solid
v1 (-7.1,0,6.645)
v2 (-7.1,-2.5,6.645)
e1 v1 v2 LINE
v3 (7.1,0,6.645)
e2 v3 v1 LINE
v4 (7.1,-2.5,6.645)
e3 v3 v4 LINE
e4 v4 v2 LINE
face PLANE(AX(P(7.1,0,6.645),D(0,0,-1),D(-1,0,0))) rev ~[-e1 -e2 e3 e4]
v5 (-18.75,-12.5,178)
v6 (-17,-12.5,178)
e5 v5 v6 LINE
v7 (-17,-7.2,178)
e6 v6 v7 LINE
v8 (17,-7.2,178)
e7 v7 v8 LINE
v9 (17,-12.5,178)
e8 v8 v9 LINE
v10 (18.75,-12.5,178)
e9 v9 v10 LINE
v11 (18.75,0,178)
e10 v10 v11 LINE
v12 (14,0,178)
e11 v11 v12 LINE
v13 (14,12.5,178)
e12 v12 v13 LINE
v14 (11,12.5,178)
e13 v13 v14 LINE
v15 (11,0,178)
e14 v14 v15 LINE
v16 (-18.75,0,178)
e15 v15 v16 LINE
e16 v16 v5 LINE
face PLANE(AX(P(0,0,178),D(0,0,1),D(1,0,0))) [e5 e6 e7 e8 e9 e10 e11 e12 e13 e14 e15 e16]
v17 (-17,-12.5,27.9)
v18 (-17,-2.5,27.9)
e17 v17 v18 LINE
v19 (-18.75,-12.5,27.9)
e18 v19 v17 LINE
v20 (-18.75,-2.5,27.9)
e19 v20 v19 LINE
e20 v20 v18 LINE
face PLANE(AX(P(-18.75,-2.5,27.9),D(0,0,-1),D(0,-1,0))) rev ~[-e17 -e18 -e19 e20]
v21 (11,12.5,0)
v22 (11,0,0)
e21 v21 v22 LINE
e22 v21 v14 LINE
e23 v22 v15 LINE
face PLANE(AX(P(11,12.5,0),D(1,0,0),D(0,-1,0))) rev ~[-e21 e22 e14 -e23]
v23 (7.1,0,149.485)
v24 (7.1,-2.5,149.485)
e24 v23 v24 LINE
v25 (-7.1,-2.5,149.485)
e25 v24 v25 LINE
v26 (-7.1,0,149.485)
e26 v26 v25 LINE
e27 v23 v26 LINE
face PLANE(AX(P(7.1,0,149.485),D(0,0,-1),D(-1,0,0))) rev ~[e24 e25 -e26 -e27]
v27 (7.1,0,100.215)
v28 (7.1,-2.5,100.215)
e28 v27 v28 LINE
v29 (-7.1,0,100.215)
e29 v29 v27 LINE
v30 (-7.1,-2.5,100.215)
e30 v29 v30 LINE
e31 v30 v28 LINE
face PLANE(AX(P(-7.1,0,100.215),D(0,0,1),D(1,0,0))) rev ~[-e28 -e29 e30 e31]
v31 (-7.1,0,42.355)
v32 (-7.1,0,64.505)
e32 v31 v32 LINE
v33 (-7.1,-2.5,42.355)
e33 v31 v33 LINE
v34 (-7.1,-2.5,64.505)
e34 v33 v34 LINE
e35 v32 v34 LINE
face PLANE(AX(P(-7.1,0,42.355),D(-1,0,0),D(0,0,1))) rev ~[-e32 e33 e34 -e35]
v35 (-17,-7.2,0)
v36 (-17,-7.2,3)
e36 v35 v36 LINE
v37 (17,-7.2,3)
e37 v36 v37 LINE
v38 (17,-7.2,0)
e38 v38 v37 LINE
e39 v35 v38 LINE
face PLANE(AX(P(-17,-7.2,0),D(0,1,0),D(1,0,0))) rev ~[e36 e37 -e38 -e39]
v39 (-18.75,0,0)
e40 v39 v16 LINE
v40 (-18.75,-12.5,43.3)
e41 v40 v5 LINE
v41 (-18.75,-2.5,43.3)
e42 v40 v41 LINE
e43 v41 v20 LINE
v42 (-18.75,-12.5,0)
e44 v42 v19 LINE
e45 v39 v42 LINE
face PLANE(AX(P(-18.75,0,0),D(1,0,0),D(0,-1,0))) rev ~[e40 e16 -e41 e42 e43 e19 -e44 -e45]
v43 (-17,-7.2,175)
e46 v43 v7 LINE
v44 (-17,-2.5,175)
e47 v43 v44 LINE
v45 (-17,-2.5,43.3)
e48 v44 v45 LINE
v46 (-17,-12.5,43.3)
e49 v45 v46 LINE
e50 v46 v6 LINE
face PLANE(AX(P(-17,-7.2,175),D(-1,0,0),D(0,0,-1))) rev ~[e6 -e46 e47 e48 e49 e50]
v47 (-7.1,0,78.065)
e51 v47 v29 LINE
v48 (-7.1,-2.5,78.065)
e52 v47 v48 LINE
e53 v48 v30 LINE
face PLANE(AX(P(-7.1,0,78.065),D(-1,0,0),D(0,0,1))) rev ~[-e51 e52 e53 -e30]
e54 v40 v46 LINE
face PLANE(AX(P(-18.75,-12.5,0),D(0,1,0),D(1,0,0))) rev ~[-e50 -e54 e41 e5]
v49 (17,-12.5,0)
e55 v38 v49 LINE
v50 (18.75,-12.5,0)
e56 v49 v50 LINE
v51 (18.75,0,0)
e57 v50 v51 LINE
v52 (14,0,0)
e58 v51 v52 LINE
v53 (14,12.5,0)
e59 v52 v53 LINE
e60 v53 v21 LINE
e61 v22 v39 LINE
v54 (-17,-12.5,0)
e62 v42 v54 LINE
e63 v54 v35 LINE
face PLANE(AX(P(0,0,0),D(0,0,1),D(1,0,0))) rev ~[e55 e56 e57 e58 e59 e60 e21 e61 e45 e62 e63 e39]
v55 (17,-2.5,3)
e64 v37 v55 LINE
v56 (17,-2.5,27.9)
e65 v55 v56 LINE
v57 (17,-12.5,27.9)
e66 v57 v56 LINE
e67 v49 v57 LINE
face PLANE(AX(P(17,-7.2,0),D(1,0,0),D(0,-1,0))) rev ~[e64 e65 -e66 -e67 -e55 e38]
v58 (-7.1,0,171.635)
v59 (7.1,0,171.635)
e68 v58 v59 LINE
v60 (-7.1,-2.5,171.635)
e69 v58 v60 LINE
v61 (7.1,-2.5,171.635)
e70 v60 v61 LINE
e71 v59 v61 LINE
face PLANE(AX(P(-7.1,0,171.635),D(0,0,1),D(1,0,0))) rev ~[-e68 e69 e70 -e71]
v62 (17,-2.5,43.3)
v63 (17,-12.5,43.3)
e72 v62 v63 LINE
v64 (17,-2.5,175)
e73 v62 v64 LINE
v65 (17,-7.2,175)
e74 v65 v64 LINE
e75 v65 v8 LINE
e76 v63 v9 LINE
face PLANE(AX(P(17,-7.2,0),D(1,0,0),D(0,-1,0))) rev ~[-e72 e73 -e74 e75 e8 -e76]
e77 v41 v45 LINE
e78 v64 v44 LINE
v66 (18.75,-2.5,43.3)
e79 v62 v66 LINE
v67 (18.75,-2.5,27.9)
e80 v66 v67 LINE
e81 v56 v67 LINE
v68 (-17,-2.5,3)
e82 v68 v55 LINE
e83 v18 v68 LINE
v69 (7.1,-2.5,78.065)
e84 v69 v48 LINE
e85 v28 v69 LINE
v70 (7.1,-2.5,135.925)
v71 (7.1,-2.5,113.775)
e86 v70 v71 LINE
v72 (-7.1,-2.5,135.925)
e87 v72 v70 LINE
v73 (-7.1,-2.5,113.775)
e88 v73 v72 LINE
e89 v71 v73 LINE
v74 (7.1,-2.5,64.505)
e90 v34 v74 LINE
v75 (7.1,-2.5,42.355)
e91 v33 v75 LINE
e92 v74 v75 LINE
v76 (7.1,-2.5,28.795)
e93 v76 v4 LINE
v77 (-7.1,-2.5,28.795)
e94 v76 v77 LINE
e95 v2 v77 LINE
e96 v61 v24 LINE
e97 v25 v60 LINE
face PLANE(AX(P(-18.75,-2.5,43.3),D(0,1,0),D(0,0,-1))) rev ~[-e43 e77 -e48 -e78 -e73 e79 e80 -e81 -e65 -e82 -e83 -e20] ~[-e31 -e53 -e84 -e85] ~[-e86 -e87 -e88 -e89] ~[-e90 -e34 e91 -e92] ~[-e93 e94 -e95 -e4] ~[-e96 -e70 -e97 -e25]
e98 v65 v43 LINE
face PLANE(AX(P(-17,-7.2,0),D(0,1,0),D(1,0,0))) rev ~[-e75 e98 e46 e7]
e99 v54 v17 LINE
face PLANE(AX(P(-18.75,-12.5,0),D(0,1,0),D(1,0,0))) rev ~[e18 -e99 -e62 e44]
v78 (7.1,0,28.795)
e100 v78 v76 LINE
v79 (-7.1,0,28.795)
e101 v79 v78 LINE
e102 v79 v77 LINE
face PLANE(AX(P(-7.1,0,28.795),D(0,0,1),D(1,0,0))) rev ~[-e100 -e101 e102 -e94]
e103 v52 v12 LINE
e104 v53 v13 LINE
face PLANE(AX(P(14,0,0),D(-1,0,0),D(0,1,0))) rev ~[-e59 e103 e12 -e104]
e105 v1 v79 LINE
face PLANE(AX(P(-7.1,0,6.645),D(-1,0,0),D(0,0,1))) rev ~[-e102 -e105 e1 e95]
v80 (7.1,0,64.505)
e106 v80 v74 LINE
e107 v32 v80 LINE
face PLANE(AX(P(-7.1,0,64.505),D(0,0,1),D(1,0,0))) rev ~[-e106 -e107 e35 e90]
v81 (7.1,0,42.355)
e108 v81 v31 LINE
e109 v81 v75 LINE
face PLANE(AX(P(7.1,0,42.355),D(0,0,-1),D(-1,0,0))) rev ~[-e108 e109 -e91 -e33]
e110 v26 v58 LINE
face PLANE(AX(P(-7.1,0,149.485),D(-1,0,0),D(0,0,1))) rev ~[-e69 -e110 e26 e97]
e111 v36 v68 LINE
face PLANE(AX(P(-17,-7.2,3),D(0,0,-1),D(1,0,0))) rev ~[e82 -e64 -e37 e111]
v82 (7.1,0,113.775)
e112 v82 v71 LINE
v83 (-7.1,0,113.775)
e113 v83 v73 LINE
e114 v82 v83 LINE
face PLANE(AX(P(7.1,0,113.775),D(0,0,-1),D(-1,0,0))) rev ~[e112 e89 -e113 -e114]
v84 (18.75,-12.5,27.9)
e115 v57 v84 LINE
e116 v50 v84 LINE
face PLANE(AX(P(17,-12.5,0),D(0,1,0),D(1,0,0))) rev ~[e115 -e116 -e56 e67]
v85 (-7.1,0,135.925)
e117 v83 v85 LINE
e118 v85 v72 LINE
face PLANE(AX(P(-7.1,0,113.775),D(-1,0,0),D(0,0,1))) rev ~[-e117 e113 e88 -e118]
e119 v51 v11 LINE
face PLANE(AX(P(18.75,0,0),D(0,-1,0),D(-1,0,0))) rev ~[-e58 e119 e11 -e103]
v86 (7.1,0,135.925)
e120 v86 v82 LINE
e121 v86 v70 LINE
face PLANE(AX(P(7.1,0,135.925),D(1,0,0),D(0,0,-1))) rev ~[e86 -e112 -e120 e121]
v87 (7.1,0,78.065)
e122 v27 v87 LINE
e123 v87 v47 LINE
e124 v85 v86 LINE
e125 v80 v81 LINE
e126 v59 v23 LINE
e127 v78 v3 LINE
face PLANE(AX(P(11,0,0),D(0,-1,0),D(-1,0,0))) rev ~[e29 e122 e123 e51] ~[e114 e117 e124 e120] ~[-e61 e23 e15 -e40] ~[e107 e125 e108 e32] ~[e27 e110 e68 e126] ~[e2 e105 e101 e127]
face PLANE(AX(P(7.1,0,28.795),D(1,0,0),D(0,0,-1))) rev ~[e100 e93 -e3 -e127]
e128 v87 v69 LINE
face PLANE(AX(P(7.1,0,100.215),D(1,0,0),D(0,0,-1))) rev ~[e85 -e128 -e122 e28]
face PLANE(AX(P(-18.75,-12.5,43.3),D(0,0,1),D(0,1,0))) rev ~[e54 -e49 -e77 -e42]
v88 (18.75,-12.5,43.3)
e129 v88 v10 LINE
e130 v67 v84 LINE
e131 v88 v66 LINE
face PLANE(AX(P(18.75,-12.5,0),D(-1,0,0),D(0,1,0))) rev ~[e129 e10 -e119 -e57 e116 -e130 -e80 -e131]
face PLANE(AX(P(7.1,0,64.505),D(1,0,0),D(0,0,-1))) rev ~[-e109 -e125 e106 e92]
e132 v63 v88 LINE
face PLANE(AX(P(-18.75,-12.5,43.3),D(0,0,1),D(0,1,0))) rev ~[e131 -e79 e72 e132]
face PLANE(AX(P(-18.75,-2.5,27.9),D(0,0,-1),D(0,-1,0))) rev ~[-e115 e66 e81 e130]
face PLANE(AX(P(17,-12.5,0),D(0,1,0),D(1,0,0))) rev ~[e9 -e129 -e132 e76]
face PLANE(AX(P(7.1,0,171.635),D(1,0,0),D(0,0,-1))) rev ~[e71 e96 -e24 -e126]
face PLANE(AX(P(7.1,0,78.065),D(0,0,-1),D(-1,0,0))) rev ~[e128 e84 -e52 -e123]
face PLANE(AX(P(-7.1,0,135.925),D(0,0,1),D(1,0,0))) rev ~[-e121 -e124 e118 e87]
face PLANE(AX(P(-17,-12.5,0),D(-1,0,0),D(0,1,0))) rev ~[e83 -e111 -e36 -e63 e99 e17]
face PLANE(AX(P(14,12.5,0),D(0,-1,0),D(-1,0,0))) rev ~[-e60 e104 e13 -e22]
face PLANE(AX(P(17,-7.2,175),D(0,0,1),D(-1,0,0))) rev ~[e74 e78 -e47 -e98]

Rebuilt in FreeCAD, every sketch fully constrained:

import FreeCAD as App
import Part
import Sketcher

doc = App.newDocument("Part")
body = doc.addObject("PartDesign::Body", "Body")

# Sketch on XY plane
sketch1 = body.newObject("Sketcher::SketchObject", "Sketch")
sketch1.AttachmentSupport = (doc.getObject("XY_Plane"), [""])
sketch1.MapMode = "FlatFace"
sketch1.addGeometry(Part.LineSegment(App.Vector(-18.8, 0, 0), App.Vector(-18.8, -12.5, 0)), False)
sketch1.addGeometry(Part.LineSegment(App.Vector(-18.8, -12.5, 0), App.Vector(-17, -12.5, 0)), False)
sketch1.addGeometry(Part.LineSegment(App.Vector(-17, -12.5, 0), App.Vector(-17, -7.2, 0)), False)
sketch1.addGeometry(Part.LineSegment(App.Vector(-17, -7.2, 0), App.Vector(17, -7.2, 0)), False)
sketch1.addGeometry(Part.LineSegment(App.Vector(17, -7.2, 0), App.Vector(17, -12.5, 0)), False)
sketch1.addGeometry(Part.LineSegment(App.Vector(17, -12.5, 0), App.Vector(18.8, -12.5, 0)), False)
sketch1.addGeometry(Part.LineSegment(App.Vector(18.8, -12.5, 0), App.Vector(18.8, 0, 0)), False)
sketch1.addGeometry(Part.LineSegment(App.Vector(18.8, 0, 0), App.Vector(14, 0, 0)), False)
sketch1.addGeometry(Part.LineSegment(App.Vector(14, 0, 0), App.Vector(14, 12.5, 0)), False)
sketch1.addGeometry(Part.LineSegment(App.Vector(14, 12.5, 0), App.Vector(11, 12.5, 0)), False)
sketch1.addGeometry(Part.LineSegment(App.Vector(11, 12.5, 0), App.Vector(11, 0, 0)), False)
sketch1.addGeometry(Part.LineSegment(App.Vector(11, 0, 0), App.Vector(-18.8, 0, 0)), False)
sketch1.addConstraint(Sketcher.Constraint("Coincident", 0, 2, 1, 1))
sketch1.addConstraint(Sketcher.Constraint("Coincident", 1, 2, 2, 1))
sketch1.addConstraint(Sketcher.Constraint("Coincident", 2, 2, 3, 1))
sketch1.addConstraint(Sketcher.Constraint("Coincident", 3, 2, 4, 1))
sketch1.addConstraint(Sketcher.Constraint("Coincident", 4, 2, 5, 1))
sketch1.addConstraint(Sketcher.Constraint("Coincident", 5, 2, 6, 1))
sketch1.addConstraint(Sketcher.Constraint("Coincident", 6, 2, 7, 1))
sketch1.addConstraint(Sketcher.Constraint("Coincident", 7, 2, 8, 1))
sketch1.addConstraint(Sketcher.Constraint("Coincident", 8, 2, 9, 1))
sketch1.addConstraint(Sketcher.Constraint("Coincident", 9, 2, 10, 1))
sketch1.addConstraint(Sketcher.Constraint("Coincident", 10, 2, 11, 1))
sketch1.addConstraint(Sketcher.Constraint("Coincident", 11, 2, 0, 1))
sketch1.addConstraint(Sketcher.Constraint("Vertical", 0))
sketch1.addConstraint(Sketcher.Constraint("Horizontal", 1))
sketch1.addConstraint(Sketcher.Constraint("Vertical", 2))
sketch1.addConstraint(Sketcher.Constraint("Horizontal", 3))
sketch1.addConstraint(Sketcher.Constraint("Vertical", 4))
sketch1.addConstraint(Sketcher.Constraint("Horizontal", 5))
sketch1.addConstraint(Sketcher.Constraint("Vertical", 6))
sketch1.addConstraint(Sketcher.Constraint("Horizontal", 7))
sketch1.addConstraint(Sketcher.Constraint("Vertical", 8))
sketch1.addConstraint(Sketcher.Constraint("Horizontal", 9))
sketch1.addConstraint(Sketcher.Constraint("Vertical", 10))
sketch1.addConstraint(Sketcher.Constraint("Horizontal", 11))
sketch1.addConstraint(Sketcher.Constraint("Symmetric", 6, 2, 11, 2, -1, 1))
sketch1.addConstraint(Sketcher.Constraint("Symmetric", 1, 2, 4, 2, -2))
sketch1.addConstraint(Sketcher.Constraint("PointOnObject", 6, 2, -1))
sketch1.addConstraint(Sketcher.Constraint("Equal", 6, 8))
sketch1.addConstraint(Sketcher.Constraint("DistanceX", 3, 1, 3, 2, 34.0))
sketch1.addConstraint(Sketcher.Constraint("DistanceX", 9, 2, 9, 1, 3.0))
sketch1.addConstraint(Sketcher.Constraint("DistanceY", 0, 2, 0, 1, 12.5))
sketch1.addConstraint(Sketcher.Constraint("DistanceY", 2, 1, 2, 2, 5.3))
sketch1.addConstraint(Sketcher.Constraint("DistanceX", -1, 1, 7, 2, 14.0))
sketch1.addConstraint(Sketcher.Constraint("DistanceX", 1, 1, 1, 2, 1.75))
pad1 = body.newObject("PartDesign::Pad", "Pad")
pad1.Profile = sketch1
pad1.Length = 178

# Sketch on XZ plane
sketch2 = body.newObject("Sketcher::SketchObject", "Sketch001")
sketch2.AttachmentSupport = (doc.getObject("XZ_Plane"), [""])
sketch2.MapMode = "FlatFace"
sketch2.addGeometry(Part.LineSegment(App.Vector(7, 7, 0), App.Vector(-7, 7, 0)), False)
sketch2.addGeometry(Part.LineSegment(App.Vector(-7, 7, 0), App.Vector(-7, 29, 0)), False)
sketch2.addGeometry(Part.LineSegment(App.Vector(-7, 29, 0), App.Vector(7, 29, 0)), False)
sketch2.addGeometry(Part.LineSegment(App.Vector(7, 29, 0), App.Vector(7, 7, 0)), False)
sketch2.addConstraint(Sketcher.Constraint("Coincident", 0, 2, 1, 1))
sketch2.addConstraint(Sketcher.Constraint("Coincident", 1, 2, 2, 1))
sketch2.addConstraint(Sketcher.Constraint("Coincident", 2, 2, 3, 1))
sketch2.addConstraint(Sketcher.Constraint("Coincident", 3, 2, 0, 1))
sketch2.addConstraint(Sketcher.Constraint("Horizontal", 0))
sketch2.addConstraint(Sketcher.Constraint("Vertical", 1))
sketch2.addConstraint(Sketcher.Constraint("Horizontal", 2))
sketch2.addConstraint(Sketcher.Constraint("Vertical", 3))
sketch2.addConstraint(Sketcher.Constraint("DistanceX", 0, 2, 0, 1, 14.2))
sketch2.addConstraint(Sketcher.Constraint("DistanceY", 1, 1, 1, 2, 22.15))
sketch2.addConstraint(Sketcher.Constraint("DistanceX", 0, 2, -1, 1, 7.1))
sketch2.addConstraint(Sketcher.Constraint("DistanceY", -1, 1, 0, 2, 6.645))
pocket1 = body.newObject("PartDesign::Pocket", "Pocket")
pocket1.Profile = sketch2
pocket1.Length = 8
pocket1.Reversed = True

# Sketch on XZ plane
sketch3 = body.newObject("Sketcher::SketchObject", "Sketch002")
sketch3.AttachmentSupport = (doc.getObject("XZ_Plane"), [""])
sketch3.MapMode = "FlatFace"
sketch3.addGeometry(Part.LineSegment(App.Vector(7, 65, 0), App.Vector(7, 42, 0)), False)
sketch3.addGeometry(Part.LineSegment(App.Vector(7, 42, 0), App.Vector(-7, 42, 0)), False)
sketch3.addGeometry(Part.LineSegment(App.Vector(-7, 42, 0), App.Vector(-7, 65, 0)), False)
sketch3.addGeometry(Part.LineSegment(App.Vector(-7, 65, 0), App.Vector(7, 65, 0)), False)
sketch3.addConstraint(Sketcher.Constraint("Coincident", 0, 2, 1, 1))
sketch3.addConstraint(Sketcher.Constraint("Coincident", 1, 2, 2, 1))
sketch3.addConstraint(Sketcher.Constraint("Coincident", 2, 2, 3, 1))
sketch3.addConstraint(Sketcher.Constraint("Coincident", 3, 2, 0, 1))
sketch3.addConstraint(Sketcher.Constraint("Vertical", 0))
sketch3.addConstraint(Sketcher.Constraint("Horizontal", 1))
sketch3.addConstraint(Sketcher.Constraint("Vertical", 2))
sketch3.addConstraint(Sketcher.Constraint("Horizontal", 3))
sketch3.addConstraint(Sketcher.Constraint("DistanceX", 1, 2, 1, 1, 14.2))
sketch3.addConstraint(Sketcher.Constraint("DistanceY", 0, 2, 0, 1, 22.15))
sketch3.addConstraint(Sketcher.Constraint("DistanceX", -1, 1, 0, 2, 7.1))
sketch3.addConstraint(Sketcher.Constraint("DistanceY", -1, 1, 0, 2, 42.355))
pocket2 = body.newObject("PartDesign::Pocket", "Pocket001")
pocket2.Profile = sketch3
pocket2.Length = 8
pocket2.Reversed = True

# Sketch on XZ plane
sketch4 = body.newObject("Sketcher::SketchObject", "Sketch003")
sketch4.AttachmentSupport = (doc.getObject("XZ_Plane"), [""])
sketch4.MapMode = "FlatFace"
sketch4.addGeometry(Part.LineSegment(App.Vector(7, 78, 0), App.Vector(-7, 78, 0)), False)
sketch4.addGeometry(Part.LineSegment(App.Vector(-7, 78, 0), App.Vector(-7, 100, 0)), False)
sketch4.addGeometry(Part.LineSegment(App.Vector(-7, 100, 0), App.Vector(7, 100, 0)), False)
sketch4.addGeometry(Part.LineSegment(App.Vector(7, 100, 0), App.Vector(7, 78, 0)), False)
sketch4.addConstraint(Sketcher.Constraint("Coincident", 0, 2, 1, 1))
sketch4.addConstraint(Sketcher.Constraint("Coincident", 1, 2, 2, 1))
sketch4.addConstraint(Sketcher.Constraint("Coincident", 2, 2, 3, 1))
sketch4.addConstraint(Sketcher.Constraint("Coincident", 3, 2, 0, 1))
sketch4.addConstraint(Sketcher.Constraint("Horizontal", 0))
sketch4.addConstraint(Sketcher.Constraint("Vertical", 1))
sketch4.addConstraint(Sketcher.Constraint("Horizontal", 2))
sketch4.addConstraint(Sketcher.Constraint("Vertical", 3))
sketch4.addConstraint(Sketcher.Constraint("DistanceX", 0, 2, 0, 1, 14.2))
sketch4.addConstraint(Sketcher.Constraint("DistanceY", 1, 1, 1, 2, 22.15))
sketch4.addConstraint(Sketcher.Constraint("DistanceX", 0, 2, -1, 1, 7.1))
sketch4.addConstraint(Sketcher.Constraint("DistanceY", -1, 1, 0, 2, 78.065))
pocket3 = body.newObject("PartDesign::Pocket", "Pocket002")
pocket3.Profile = sketch4
pocket3.Length = 8
pocket3.Reversed = True

# Sketch on XZ plane
sketch5 = body.newObject("Sketcher::SketchObject", "Sketch004")
sketch5.AttachmentSupport = (doc.getObject("XZ_Plane"), [""])
sketch5.MapMode = "FlatFace"
sketch5.addGeometry(Part.LineSegment(App.Vector(7, 136, 0), App.Vector(7, 114, 0)), False)
sketch5.addGeometry(Part.LineSegment(App.Vector(7, 114, 0), App.Vector(-7, 114, 0)), False)
sketch5.addGeometry(Part.LineSegment(App.Vector(-7, 114, 0), App.Vector(-7, 136, 0)), False)
sketch5.addGeometry(Part.LineSegment(App.Vector(-7, 136, 0), App.Vector(7, 136, 0)), False)
sketch5.addConstraint(Sketcher.Constraint("Coincident", 0, 2, 1, 1))
sketch5.addConstraint(Sketcher.Constraint("Coincident", 1, 2, 2, 1))
sketch5.addConstraint(Sketcher.Constraint("Coincident", 2, 2, 3, 1))
sketch5.addConstraint(Sketcher.Constraint("Coincident", 3, 2, 0, 1))
sketch5.addConstraint(Sketcher.Constraint("Vertical", 0))
sketch5.addConstraint(Sketcher.Constraint("Horizontal", 1))
sketch5.addConstraint(Sketcher.Constraint("Vertical", 2))
sketch5.addConstraint(Sketcher.Constraint("Horizontal", 3))
sketch5.addConstraint(Sketcher.Constraint("DistanceX", 1, 2, 1, 1, 14.2))
sketch5.addConstraint(Sketcher.Constraint("DistanceY", 0, 2, 0, 1, 22.15))
sketch5.addConstraint(Sketcher.Constraint("DistanceX", -1, 1, 0, 2, 7.1))
sketch5.addConstraint(Sketcher.Constraint("DistanceY", -1, 1, 0, 2, 113.775))
pocket4 = body.newObject("PartDesign::Pocket", "Pocket003")
pocket4.Profile = sketch5
pocket4.Length = 8
pocket4.Reversed = True

# Sketch on XZ plane
sketch6 = body.newObject("Sketcher::SketchObject", "Sketch005")
sketch6.AttachmentSupport = (doc.getObject("XZ_Plane"), [""])
sketch6.MapMode = "FlatFace"
sketch6.addGeometry(Part.LineSegment(App.Vector(7, 172, 0), App.Vector(7, 149, 0)), False)
sketch6.addGeometry(Part.LineSegment(App.Vector(7, 149, 0), App.Vector(-7, 149, 0)), False)
sketch6.addGeometry(Part.LineSegment(App.Vector(-7, 149, 0), App.Vector(-7, 172, 0)), False)
sketch6.addGeometry(Part.LineSegment(App.Vector(-7, 172, 0), App.Vector(7, 172, 0)), False)
sketch6.addConstraint(Sketcher.Constraint("Coincident", 0, 2, 1, 1))
sketch6.addConstraint(Sketcher.Constraint("Coincident", 1, 2, 2, 1))
sketch6.addConstraint(Sketcher.Constraint("Coincident", 2, 2, 3, 1))
sketch6.addConstraint(Sketcher.Constraint("Coincident", 3, 2, 0, 1))
sketch6.addConstraint(Sketcher.Constraint("Vertical", 0))
sketch6.addConstraint(Sketcher.Constraint("Horizontal", 1))
sketch6.addConstraint(Sketcher.Constraint("Vertical", 2))
sketch6.addConstraint(Sketcher.Constraint("Horizontal", 3))
sketch6.addConstraint(Sketcher.Constraint("DistanceX", 1, 2, 1, 1, 14.2))
sketch6.addConstraint(Sketcher.Constraint("DistanceY", 0, 2, 0, 1, 22.15))
sketch6.addConstraint(Sketcher.Constraint("DistanceX", -1, 1, 0, 2, 7.1))
sketch6.addConstraint(Sketcher.Constraint("DistanceY", -1, 1, 0, 2, 149.485))
pocket5 = body.newObject("PartDesign::Pocket", "Pocket004")
pocket5.Profile = sketch6
pocket5.Length = 8
pocket5.Reversed = True

# Sketch on YZ plane
sketch7 = body.newObject("Sketcher::SketchObject", "Sketch006")
sketch7.AttachmentSupport = (doc.getObject("YZ_Plane"), [""])
sketch7.MapMode = "FlatFace"
sketch7.AttachmentOffset = App.Placement(App.Vector(0, 0, -18.75), App.Rotation())
sketch7.addGeometry(Part.LineSegment(App.Vector(-2, 43, 0), App.Vector(-2, 28, 0)), False)
sketch7.addGeometry(Part.LineSegment(App.Vector(-2, 28, 0), App.Vector(-12, 28, 0)), False)
sketch7.addGeometry(Part.LineSegment(App.Vector(-12, 28, 0), App.Vector(-12, 43, 0)), False)
sketch7.addGeometry(Part.LineSegment(App.Vector(-12, 43, 0), App.Vector(-2, 43, 0)), False)
sketch7.addConstraint(Sketcher.Constraint("Coincident", 0, 2, 1, 1))
sketch7.addConstraint(Sketcher.Constraint("Coincident", 1, 2, 2, 1))
sketch7.addConstraint(Sketcher.Constraint("Coincident", 2, 2, 3, 1))
sketch7.addConstraint(Sketcher.Constraint("Coincident", 3, 2, 0, 1))
sketch7.addConstraint(Sketcher.Constraint("Vertical", 0))
sketch7.addConstraint(Sketcher.Constraint("Horizontal", 1))
sketch7.addConstraint(Sketcher.Constraint("Vertical", 2))
sketch7.addConstraint(Sketcher.Constraint("Horizontal", 3))
sketch7.addConstraint(Sketcher.Constraint("DistanceX", 1, 2, 1, 1, 10.0))
sketch7.addConstraint(Sketcher.Constraint("DistanceY", 0, 2, 0, 1, 15.4))
sketch7.addConstraint(Sketcher.Constraint("DistanceX", 0, 2, -1, 1, 2.5))
sketch7.addConstraint(Sketcher.Constraint("DistanceY", -1, 1, 0, 2, 27.9))
pocket6 = body.newObject("PartDesign::Pocket", "Pocket005")
pocket6.Profile = sketch7
pocket6.Length = 37.5
pocket6.Reversed = True

# Sketch on XZ plane
sketch8 = body.newObject("Sketcher::SketchObject", "Sketch007")
sketch8.AttachmentSupport = (doc.getObject("XZ_Plane"), [""])
sketch8.MapMode = "FlatFace"
sketch8.AttachmentOffset = App.Placement(App.Vector(0, 0, 7.2), App.Rotation())
sketch8.addGeometry(Part.LineSegment(App.Vector(17, 175, 0), App.Vector(-17, 175, 0)), False)
sketch8.addGeometry(Part.LineSegment(App.Vector(-17, 175, 0), App.Vector(-17, 3, 0)), False)
sketch8.addGeometry(Part.LineSegment(App.Vector(-17, 3, 0), App.Vector(17, 3, 0)), False)
sketch8.addGeometry(Part.LineSegment(App.Vector(17, 3, 0), App.Vector(17, 175, 0)), False)
sketch8.addConstraint(Sketcher.Constraint("Coincident", 0, 2, 1, 1))
sketch8.addConstraint(Sketcher.Constraint("Coincident", 1, 2, 2, 1))
sketch8.addConstraint(Sketcher.Constraint("Coincident", 2, 2, 3, 1))
sketch8.addConstraint(Sketcher.Constraint("Coincident", 3, 2, 0, 1))
sketch8.addConstraint(Sketcher.Constraint("Horizontal", 0))
sketch8.addConstraint(Sketcher.Constraint("Vertical", 1))
sketch8.addConstraint(Sketcher.Constraint("Horizontal", 2))
sketch8.addConstraint(Sketcher.Constraint("Vertical", 3))
sketch8.addConstraint(Sketcher.Constraint("DistanceX", 0, 2, 0, 1, 34.0))
sketch8.addConstraint(Sketcher.Constraint("DistanceY", 1, 2, 1, 1, 172.0))
sketch8.addConstraint(Sketcher.Constraint("DistanceX", 0, 2, -1, 1, 17.0))
sketch8.addConstraint(Sketcher.Constraint("DistanceY", -1, 1, 0, 2, 175.0))
pocket7 = body.newObject("PartDesign::Pocket", "Pocket006")
pocket7.Profile = sketch8
pocket7.Length = 4.7

doc.recompute()
